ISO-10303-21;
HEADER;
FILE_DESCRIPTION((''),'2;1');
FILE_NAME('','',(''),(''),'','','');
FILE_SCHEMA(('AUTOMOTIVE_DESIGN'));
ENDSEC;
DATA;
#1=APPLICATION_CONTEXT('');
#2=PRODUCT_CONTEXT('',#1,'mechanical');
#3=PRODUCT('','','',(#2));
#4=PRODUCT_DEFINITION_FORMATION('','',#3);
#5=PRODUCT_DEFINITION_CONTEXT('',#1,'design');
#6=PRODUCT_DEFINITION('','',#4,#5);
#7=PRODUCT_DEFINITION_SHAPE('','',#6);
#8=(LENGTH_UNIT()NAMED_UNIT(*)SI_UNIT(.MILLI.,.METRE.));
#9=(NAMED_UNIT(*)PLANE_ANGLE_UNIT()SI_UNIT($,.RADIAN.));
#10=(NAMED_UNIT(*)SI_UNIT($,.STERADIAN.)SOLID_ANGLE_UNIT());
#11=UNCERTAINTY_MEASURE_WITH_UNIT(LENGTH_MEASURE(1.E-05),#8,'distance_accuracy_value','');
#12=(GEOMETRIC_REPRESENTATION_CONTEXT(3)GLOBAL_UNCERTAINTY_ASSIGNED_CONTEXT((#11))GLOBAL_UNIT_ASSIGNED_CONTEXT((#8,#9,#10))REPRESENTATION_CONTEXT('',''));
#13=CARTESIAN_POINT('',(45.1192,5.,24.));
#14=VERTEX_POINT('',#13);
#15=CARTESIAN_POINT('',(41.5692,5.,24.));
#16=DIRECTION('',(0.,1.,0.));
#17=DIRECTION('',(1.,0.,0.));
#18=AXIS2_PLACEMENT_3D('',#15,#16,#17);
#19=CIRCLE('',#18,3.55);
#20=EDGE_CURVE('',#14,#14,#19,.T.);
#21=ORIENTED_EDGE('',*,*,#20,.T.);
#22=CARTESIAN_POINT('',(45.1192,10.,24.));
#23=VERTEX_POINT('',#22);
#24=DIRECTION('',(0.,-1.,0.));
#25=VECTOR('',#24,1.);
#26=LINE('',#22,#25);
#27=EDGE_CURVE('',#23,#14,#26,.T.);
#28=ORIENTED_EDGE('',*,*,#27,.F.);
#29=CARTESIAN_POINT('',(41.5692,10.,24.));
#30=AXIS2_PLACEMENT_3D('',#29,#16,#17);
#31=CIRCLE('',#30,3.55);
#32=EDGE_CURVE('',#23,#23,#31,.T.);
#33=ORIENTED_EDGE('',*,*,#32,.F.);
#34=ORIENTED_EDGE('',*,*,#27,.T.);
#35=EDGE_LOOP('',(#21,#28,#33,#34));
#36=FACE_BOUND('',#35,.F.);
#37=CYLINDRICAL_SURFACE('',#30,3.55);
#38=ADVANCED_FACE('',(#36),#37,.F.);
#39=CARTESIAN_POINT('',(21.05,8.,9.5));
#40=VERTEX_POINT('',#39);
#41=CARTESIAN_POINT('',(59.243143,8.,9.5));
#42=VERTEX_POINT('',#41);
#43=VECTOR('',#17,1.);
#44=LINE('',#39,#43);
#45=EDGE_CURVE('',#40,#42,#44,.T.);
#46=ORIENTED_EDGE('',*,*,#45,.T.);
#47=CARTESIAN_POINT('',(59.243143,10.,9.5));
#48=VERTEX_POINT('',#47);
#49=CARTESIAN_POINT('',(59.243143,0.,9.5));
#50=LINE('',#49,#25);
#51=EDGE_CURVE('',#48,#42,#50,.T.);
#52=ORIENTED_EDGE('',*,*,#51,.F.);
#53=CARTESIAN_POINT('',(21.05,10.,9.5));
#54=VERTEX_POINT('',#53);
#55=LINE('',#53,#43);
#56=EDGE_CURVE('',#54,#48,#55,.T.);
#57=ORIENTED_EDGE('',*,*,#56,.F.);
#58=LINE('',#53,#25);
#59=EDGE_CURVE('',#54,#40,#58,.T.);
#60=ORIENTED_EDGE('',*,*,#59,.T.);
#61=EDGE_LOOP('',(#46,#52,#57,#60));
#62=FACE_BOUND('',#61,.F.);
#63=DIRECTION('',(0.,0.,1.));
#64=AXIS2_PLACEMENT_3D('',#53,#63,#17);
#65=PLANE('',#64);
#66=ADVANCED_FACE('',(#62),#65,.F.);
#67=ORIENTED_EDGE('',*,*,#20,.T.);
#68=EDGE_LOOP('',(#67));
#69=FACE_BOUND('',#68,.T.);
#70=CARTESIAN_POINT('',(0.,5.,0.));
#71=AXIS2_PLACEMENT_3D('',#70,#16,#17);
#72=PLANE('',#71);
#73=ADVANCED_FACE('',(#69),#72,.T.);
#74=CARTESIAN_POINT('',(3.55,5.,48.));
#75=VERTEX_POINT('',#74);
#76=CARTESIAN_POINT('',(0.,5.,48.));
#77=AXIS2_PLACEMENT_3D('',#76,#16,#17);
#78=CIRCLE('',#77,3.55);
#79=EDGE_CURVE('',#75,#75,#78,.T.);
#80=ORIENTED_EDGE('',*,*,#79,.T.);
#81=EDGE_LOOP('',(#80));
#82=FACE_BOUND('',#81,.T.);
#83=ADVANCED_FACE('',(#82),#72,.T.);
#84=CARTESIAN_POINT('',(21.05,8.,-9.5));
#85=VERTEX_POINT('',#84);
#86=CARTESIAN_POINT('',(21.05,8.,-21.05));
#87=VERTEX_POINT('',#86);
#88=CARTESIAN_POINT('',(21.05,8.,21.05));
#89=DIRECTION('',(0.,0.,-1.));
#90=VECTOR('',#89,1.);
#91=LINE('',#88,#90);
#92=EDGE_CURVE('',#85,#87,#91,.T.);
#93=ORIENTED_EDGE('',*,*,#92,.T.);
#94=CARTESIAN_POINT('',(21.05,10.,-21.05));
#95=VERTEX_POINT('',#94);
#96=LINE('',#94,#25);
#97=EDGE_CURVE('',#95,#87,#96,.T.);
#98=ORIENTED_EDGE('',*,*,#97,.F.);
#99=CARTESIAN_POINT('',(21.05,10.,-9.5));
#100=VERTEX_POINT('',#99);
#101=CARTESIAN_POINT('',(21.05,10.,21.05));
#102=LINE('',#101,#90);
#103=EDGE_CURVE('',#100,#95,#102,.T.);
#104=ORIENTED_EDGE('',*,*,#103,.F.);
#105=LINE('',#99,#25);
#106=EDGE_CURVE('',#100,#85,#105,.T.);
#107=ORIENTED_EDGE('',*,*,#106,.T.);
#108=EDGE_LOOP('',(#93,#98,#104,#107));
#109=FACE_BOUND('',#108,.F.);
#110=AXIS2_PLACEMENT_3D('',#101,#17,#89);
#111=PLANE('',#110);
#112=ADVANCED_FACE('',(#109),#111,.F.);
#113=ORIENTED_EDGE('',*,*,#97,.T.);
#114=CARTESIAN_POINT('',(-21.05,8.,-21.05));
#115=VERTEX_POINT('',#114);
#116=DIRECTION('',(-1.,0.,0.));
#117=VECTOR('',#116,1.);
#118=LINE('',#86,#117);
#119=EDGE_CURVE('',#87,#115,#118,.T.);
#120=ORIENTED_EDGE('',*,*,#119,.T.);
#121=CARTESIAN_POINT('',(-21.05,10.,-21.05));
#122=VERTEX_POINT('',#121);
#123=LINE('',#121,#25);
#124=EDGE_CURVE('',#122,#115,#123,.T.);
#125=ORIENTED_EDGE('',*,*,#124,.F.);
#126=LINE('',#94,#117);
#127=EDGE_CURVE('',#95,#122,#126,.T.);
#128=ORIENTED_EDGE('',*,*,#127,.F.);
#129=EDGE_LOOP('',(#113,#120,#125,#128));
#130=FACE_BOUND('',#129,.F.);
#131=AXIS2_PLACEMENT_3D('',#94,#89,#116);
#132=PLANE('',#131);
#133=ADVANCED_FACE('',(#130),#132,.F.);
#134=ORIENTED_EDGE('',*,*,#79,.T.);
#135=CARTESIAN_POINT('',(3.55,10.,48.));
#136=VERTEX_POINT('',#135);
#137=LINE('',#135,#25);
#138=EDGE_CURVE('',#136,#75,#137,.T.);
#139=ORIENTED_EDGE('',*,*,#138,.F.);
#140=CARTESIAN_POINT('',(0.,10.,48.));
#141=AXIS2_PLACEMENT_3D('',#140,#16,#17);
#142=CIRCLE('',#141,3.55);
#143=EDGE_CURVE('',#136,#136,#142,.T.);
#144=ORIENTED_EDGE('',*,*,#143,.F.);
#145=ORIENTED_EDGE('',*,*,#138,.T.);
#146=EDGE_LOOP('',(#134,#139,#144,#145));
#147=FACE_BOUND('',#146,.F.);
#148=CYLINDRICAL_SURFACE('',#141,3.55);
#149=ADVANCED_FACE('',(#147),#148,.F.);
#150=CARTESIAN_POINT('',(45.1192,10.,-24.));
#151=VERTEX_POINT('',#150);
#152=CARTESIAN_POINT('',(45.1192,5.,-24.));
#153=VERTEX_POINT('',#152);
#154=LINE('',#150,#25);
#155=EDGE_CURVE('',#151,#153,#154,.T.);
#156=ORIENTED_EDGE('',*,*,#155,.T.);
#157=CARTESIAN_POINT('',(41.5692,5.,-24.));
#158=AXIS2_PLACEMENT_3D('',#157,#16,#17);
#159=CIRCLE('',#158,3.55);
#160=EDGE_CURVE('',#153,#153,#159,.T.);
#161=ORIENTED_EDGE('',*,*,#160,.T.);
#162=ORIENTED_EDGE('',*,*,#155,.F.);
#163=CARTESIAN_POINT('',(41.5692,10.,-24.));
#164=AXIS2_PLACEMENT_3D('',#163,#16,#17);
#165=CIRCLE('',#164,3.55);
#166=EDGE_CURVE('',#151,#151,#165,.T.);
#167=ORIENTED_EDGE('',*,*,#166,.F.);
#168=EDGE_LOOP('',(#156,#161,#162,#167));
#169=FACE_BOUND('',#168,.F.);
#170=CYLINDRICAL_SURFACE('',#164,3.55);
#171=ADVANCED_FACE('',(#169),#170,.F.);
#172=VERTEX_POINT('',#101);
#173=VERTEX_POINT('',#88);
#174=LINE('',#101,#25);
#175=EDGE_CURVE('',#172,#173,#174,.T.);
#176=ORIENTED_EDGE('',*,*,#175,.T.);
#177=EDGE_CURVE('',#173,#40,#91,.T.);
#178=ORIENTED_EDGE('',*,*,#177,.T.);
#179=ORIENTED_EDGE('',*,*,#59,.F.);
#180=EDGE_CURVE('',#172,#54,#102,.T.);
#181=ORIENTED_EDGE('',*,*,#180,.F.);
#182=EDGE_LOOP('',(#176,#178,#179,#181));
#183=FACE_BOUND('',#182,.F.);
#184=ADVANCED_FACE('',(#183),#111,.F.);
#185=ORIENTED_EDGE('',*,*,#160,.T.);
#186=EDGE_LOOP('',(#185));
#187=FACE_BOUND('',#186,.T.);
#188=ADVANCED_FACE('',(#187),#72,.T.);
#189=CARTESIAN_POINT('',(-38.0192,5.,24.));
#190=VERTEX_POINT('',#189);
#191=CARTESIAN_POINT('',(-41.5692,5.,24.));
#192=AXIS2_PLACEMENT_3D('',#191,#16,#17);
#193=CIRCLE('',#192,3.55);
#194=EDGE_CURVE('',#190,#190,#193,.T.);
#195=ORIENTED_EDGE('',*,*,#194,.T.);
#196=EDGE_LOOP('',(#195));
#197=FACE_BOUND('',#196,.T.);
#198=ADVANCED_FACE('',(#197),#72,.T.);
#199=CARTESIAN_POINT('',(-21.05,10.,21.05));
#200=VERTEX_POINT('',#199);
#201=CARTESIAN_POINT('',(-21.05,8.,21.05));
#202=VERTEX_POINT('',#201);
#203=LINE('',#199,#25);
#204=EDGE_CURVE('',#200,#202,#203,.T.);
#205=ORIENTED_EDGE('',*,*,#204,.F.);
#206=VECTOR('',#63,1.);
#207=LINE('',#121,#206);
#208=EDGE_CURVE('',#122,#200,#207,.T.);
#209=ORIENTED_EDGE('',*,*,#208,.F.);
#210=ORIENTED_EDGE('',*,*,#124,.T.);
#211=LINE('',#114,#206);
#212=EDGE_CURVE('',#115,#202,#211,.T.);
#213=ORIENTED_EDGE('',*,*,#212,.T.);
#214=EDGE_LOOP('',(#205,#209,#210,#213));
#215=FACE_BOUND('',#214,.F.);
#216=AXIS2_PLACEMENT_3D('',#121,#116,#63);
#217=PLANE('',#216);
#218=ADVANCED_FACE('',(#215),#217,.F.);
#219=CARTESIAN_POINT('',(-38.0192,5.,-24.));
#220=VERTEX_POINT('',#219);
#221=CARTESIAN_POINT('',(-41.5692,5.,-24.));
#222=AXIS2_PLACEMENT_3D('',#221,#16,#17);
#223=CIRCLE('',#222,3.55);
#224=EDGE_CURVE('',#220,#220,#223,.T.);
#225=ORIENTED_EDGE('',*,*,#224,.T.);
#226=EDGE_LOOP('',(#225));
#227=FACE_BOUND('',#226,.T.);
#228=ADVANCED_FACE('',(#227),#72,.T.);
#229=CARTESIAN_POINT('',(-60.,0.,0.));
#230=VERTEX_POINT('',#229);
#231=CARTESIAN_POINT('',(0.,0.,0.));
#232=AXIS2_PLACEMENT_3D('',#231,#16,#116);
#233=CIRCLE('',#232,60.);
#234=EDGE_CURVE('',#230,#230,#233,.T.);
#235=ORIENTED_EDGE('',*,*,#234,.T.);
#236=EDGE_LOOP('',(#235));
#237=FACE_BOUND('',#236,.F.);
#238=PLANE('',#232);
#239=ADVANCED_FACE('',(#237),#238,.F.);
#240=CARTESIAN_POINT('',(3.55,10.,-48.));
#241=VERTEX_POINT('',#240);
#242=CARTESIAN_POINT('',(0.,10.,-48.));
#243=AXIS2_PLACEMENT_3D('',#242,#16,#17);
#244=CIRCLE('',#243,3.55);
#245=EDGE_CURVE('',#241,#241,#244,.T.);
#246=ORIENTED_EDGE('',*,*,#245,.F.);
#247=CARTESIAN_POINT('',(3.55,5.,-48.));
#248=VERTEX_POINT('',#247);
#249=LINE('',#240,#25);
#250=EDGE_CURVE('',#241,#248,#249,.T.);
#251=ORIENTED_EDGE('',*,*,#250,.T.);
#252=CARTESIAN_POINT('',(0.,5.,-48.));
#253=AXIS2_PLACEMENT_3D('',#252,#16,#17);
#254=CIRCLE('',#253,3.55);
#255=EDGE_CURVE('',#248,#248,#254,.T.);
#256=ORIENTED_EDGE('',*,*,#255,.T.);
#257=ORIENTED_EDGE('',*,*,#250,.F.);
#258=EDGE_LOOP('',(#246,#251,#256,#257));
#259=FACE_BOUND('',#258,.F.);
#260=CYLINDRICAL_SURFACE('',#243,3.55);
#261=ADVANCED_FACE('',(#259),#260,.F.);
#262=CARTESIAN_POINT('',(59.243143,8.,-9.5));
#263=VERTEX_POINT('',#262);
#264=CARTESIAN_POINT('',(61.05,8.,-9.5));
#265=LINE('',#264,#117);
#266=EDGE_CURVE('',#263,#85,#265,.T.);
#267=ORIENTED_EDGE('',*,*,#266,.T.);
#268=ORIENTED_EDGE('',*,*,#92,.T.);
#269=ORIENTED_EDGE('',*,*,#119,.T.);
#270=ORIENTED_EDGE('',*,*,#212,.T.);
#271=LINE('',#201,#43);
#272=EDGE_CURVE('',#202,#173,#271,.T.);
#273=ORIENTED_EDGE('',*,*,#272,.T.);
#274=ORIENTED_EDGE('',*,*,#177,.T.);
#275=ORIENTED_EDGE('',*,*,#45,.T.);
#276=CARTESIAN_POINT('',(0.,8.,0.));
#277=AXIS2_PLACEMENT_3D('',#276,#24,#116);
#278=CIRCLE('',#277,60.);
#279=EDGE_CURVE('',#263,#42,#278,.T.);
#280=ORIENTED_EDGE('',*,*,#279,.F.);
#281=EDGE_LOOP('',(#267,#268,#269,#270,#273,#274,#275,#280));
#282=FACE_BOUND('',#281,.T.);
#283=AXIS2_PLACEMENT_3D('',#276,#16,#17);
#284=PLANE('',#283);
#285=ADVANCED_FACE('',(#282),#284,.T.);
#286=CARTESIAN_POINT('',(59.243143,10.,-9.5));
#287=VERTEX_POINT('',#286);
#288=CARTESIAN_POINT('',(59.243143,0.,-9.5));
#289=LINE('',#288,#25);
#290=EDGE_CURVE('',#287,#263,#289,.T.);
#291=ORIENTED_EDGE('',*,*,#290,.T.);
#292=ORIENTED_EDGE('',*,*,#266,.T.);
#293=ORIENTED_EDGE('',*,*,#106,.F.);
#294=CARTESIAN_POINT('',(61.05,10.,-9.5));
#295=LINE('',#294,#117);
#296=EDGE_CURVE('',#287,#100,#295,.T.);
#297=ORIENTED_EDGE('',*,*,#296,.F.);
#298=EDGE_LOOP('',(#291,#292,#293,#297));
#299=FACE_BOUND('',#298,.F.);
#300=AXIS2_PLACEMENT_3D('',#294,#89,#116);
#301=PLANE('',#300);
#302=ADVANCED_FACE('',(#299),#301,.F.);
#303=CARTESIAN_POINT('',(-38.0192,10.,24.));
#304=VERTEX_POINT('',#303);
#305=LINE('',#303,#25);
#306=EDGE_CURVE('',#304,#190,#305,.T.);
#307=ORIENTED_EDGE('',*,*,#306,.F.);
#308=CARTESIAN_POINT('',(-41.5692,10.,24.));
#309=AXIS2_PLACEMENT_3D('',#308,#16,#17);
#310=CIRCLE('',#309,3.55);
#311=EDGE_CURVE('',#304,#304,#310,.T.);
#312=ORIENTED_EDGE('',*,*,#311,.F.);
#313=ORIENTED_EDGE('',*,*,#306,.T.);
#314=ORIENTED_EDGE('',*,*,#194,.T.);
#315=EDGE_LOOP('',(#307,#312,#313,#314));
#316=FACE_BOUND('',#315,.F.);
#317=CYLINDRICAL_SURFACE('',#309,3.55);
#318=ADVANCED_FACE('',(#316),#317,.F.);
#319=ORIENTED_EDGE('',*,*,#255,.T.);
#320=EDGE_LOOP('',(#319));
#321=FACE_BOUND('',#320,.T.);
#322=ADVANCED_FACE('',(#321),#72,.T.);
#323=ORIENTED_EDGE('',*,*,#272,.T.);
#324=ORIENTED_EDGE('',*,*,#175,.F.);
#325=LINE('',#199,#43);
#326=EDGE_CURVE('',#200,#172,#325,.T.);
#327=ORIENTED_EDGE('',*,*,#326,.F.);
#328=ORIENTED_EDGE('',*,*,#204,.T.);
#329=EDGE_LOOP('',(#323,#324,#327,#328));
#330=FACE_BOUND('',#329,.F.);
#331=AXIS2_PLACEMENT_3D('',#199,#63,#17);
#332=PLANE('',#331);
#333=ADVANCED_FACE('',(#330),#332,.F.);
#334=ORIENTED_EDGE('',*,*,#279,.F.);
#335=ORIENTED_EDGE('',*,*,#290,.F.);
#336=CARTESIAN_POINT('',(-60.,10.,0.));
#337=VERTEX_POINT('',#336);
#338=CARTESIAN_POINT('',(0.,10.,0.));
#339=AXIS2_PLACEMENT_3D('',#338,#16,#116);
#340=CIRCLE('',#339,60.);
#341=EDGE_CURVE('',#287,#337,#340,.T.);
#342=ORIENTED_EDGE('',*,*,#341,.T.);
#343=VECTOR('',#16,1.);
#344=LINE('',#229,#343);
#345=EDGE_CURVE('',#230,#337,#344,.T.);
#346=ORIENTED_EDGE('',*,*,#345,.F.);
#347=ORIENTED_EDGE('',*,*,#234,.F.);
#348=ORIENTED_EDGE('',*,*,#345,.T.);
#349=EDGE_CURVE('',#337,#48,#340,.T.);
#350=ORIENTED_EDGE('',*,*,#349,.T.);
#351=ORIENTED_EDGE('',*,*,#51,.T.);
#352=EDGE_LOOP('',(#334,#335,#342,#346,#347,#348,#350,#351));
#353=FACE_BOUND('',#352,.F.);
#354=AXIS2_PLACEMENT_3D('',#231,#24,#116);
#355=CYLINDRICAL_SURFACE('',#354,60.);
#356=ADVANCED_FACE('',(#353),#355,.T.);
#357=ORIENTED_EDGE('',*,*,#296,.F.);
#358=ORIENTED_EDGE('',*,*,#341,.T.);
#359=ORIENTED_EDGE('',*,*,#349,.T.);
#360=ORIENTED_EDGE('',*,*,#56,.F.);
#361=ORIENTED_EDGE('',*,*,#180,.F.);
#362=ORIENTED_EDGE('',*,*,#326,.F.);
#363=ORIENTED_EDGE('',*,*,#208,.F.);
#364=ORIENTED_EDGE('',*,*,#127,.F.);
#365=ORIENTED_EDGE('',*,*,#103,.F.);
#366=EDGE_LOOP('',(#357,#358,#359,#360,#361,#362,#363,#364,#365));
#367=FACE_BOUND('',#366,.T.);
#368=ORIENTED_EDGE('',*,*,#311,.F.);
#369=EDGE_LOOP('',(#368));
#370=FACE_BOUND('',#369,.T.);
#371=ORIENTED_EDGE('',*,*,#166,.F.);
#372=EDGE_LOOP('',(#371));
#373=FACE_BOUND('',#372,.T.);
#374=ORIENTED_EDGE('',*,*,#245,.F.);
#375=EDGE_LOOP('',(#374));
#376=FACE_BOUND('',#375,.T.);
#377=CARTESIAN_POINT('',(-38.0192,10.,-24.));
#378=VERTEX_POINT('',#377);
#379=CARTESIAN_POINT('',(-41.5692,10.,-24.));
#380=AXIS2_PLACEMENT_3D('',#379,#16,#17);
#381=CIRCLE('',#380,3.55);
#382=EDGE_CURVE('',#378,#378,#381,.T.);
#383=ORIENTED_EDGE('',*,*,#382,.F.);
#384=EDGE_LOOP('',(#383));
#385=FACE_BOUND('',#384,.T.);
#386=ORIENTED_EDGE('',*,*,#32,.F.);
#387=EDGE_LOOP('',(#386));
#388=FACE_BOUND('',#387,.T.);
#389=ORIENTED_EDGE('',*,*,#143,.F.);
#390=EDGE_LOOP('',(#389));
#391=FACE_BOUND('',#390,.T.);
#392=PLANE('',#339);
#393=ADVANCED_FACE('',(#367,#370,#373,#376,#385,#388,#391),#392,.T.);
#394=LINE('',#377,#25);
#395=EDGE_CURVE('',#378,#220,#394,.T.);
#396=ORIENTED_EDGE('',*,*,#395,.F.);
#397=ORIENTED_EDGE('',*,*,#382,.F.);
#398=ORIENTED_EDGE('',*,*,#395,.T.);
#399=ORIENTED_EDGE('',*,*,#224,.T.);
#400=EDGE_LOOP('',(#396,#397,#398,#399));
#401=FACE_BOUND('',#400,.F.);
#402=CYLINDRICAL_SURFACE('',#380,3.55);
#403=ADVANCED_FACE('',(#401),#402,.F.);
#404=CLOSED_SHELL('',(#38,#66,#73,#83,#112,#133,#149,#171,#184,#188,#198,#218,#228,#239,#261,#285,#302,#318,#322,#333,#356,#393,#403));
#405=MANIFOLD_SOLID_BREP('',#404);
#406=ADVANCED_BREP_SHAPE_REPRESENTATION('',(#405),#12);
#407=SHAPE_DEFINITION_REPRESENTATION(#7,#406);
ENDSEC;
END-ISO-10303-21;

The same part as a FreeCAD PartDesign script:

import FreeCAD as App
import Part
import Sketcher
from FreeCAD import Vector
Q = App.Units.Quantity


def add_polygon(sketch, points):
    """Adds a closed chain of lines whose ends are joined by coincident constraints."""
    first, n = sketch.GeometryCount, len(points)
    for a, b in zip(points, points[1:] + points[:1]):
        sketch.addGeometry(Part.LineSegment(App.Vector(*a, 0), App.Vector(*b, 0)), False)
    for i in range(n):
        sketch.addConstraint(Sketcher.Constraint("Coincident", first + i, 2, first + (i + 1) % n, 1))

doc = App.newDocument("Part")
body = doc.addObject("PartDesign::Body", "Body")

# Sketch on XZ plane
sketch1 = body.newObject("Sketcher::SketchObject", "Sketch")
sketch1.AttachmentSupport = (doc.getObject("XZ_Plane"), [""])
sketch1.MapMode = "FlatFace"
sketch1.addGeometry(Part.Circle(Vector(0, 0, 0), Vector(0, 0, 1), 60), False)
sketch1.addConstraint([
    Sketcher.Constraint("Coincident", 0, 3, -1, 1),
    Sketcher.Constraint("Diameter", 0, Q("120 mm")),
])
pad1 = body.newObject("PartDesign::Pad", "Pad")
pad1.Profile = sketch1
pad1.Length = 10
pad1.Reversed = True

# Sketch on XZ plane
sketch2 = body.newObject("Sketcher::SketchObject", "Sketch001")
sketch2.AttachmentSupport = (doc.getObject("XZ_Plane"), [""])
sketch2.MapMode = "FlatFace"
sketch2.AttachmentOffset = App.Placement(Vector(0, 0, -10), App.Rotation())
sketch2.addGeometry([
    Part.Circle(Vector(0, -48, 0), Vector(0, 0, 1), 3.5),  # 0
    Part.Circle(Vector(-41.6, -24, 0), Vector(0, 0, 1), 3.5),  # 1
    Part.Circle(Vector(-41.6, 24, 0), Vector(0, 0, 1), 3.5),  # 2
    Part.Circle(Vector(0, 48, 0), Vector(0, 0, 1), 3.5),  # 3
    Part.Circle(Vector(41.6, 24, 0), Vector(0, 0, 1), 3.5),  # 4
    Part.Circle(Vector(41.6, -24, 0), Vector(0, 0, 1), 3.5),  # 5
], False)
sketch2.addConstraint([
    Sketcher.Constraint("Equal", 0, 1),
    Sketcher.Constraint("Equal", 1, 2),
    Sketcher.Constraint("Equal", 2, 3),
    Sketcher.Constraint("Equal", 3, 4),
    Sketcher.Constraint("Equal", 4, 5),
    Sketcher.Constraint("Symmetric", 0, 3, 3, 3, -1, 1),
    Sketcher.Constraint("Symmetric", 1, 3, 4, 3, -1, 1),
    Sketcher.Constraint("Symmetric", 2, 3, 5, 3, -1, 1),
    Sketcher.Constraint("Symmetric", 2, 3, 4, 3, -2),
    Sketcher.Constraint("PointOnObject", 0, 3, -2),
    Sketcher.Constraint("Diameter", 0, Q("7.1 mm")),
    Sketcher.Constraint("DistanceY", 0, 3, -1, 1, Q("48 mm")),
    Sketcher.Constraint("DistanceY", 1, 3, 2, 3, Q("48 mm")),
    Sketcher.Constraint("DistanceX", 1, 3, -1, 1, Q("41.5692 mm")),
])
pocket1 = body.newObject("PartDesign::Pocket", "Pocket")
pocket1.Profile = sketch2
pocket1.Length = 5
pocket1.Reversed = True

# Sketch on XZ plane
sketch3 = body.newObject("Sketcher::SketchObject", "Sketch002")
sketch3.AttachmentSupport = (doc.getObject("XZ_Plane"), [""])
sketch3.MapMode = "FlatFace"
sketch3.AttachmentOffset = App.Placement(Vector(0, 0, -10), App.Rotation())
add_polygon(sketch3, [(-21, 21), (21, 21), (21, -21), (-21, -21)])  # lines 0-3
sketch3.addConstraint([
    Sketcher.Constraint("Horizontal", 0),
    Sketcher.Constraint("Vertical", 1),
    Sketcher.Constraint("Horizontal", 2),
    Sketcher.Constraint("Vertical", 3),
    Sketcher.Constraint("Symmetric", 0, 2, 2, 2, -1, 1),
    Sketcher.Constraint("Equal", 2, 1),
    Sketcher.Constraint("DistanceX", 0, 1, 0, 2, Q("42.1 mm")),
])
pocket2 = body.newObject("PartDesign::Pocket", "Pocket001")
pocket2.Profile = sketch3
pocket2.Length = 2
pocket2.Reversed = True

# Sketch on XZ plane
sketch4 = body.newObject("Sketcher::SketchObject", "Sketch003")
sketch4.AttachmentSupport = (doc.getObject("XZ_Plane"), [""])
sketch4.MapMode = "FlatFace"
sketch4.AttachmentOffset = App.Placement(Vector(0, 0, -10), App.Rotation())
add_polygon(sketch4, [(61, -10), (21, -10), (21, 10), (61, 10)])  # lines 0-3
sketch4.addConstraint([
    Sketcher.Constraint("Horizontal", 0),
    Sketcher.Constraint("Vertical", 1),
    Sketcher.Constraint("Horizontal", 2),
    Sketcher.Constraint("Vertical", 3),
    Sketcher.Constraint("DistanceX", 0, 2, 0, 1, Q("40 mm")),
    Sketcher.Constraint("DistanceY", 1, 1, 1, 2, Q("19 mm")),
    Sketcher.Constraint("DistanceY", 0, 2, -1, 1, Q("9.5 mm")),
    Sketcher.Constraint("DistanceX", -1, 1, 0, 2, Q("21.05 mm")),
])
pocket3 = body.newObject("PartDesign::Pocket", "Pocket002")
pocket3.Profile = sketch4
pocket3.Length = 2
pocket3.Reversed = True

doc.recompute()
